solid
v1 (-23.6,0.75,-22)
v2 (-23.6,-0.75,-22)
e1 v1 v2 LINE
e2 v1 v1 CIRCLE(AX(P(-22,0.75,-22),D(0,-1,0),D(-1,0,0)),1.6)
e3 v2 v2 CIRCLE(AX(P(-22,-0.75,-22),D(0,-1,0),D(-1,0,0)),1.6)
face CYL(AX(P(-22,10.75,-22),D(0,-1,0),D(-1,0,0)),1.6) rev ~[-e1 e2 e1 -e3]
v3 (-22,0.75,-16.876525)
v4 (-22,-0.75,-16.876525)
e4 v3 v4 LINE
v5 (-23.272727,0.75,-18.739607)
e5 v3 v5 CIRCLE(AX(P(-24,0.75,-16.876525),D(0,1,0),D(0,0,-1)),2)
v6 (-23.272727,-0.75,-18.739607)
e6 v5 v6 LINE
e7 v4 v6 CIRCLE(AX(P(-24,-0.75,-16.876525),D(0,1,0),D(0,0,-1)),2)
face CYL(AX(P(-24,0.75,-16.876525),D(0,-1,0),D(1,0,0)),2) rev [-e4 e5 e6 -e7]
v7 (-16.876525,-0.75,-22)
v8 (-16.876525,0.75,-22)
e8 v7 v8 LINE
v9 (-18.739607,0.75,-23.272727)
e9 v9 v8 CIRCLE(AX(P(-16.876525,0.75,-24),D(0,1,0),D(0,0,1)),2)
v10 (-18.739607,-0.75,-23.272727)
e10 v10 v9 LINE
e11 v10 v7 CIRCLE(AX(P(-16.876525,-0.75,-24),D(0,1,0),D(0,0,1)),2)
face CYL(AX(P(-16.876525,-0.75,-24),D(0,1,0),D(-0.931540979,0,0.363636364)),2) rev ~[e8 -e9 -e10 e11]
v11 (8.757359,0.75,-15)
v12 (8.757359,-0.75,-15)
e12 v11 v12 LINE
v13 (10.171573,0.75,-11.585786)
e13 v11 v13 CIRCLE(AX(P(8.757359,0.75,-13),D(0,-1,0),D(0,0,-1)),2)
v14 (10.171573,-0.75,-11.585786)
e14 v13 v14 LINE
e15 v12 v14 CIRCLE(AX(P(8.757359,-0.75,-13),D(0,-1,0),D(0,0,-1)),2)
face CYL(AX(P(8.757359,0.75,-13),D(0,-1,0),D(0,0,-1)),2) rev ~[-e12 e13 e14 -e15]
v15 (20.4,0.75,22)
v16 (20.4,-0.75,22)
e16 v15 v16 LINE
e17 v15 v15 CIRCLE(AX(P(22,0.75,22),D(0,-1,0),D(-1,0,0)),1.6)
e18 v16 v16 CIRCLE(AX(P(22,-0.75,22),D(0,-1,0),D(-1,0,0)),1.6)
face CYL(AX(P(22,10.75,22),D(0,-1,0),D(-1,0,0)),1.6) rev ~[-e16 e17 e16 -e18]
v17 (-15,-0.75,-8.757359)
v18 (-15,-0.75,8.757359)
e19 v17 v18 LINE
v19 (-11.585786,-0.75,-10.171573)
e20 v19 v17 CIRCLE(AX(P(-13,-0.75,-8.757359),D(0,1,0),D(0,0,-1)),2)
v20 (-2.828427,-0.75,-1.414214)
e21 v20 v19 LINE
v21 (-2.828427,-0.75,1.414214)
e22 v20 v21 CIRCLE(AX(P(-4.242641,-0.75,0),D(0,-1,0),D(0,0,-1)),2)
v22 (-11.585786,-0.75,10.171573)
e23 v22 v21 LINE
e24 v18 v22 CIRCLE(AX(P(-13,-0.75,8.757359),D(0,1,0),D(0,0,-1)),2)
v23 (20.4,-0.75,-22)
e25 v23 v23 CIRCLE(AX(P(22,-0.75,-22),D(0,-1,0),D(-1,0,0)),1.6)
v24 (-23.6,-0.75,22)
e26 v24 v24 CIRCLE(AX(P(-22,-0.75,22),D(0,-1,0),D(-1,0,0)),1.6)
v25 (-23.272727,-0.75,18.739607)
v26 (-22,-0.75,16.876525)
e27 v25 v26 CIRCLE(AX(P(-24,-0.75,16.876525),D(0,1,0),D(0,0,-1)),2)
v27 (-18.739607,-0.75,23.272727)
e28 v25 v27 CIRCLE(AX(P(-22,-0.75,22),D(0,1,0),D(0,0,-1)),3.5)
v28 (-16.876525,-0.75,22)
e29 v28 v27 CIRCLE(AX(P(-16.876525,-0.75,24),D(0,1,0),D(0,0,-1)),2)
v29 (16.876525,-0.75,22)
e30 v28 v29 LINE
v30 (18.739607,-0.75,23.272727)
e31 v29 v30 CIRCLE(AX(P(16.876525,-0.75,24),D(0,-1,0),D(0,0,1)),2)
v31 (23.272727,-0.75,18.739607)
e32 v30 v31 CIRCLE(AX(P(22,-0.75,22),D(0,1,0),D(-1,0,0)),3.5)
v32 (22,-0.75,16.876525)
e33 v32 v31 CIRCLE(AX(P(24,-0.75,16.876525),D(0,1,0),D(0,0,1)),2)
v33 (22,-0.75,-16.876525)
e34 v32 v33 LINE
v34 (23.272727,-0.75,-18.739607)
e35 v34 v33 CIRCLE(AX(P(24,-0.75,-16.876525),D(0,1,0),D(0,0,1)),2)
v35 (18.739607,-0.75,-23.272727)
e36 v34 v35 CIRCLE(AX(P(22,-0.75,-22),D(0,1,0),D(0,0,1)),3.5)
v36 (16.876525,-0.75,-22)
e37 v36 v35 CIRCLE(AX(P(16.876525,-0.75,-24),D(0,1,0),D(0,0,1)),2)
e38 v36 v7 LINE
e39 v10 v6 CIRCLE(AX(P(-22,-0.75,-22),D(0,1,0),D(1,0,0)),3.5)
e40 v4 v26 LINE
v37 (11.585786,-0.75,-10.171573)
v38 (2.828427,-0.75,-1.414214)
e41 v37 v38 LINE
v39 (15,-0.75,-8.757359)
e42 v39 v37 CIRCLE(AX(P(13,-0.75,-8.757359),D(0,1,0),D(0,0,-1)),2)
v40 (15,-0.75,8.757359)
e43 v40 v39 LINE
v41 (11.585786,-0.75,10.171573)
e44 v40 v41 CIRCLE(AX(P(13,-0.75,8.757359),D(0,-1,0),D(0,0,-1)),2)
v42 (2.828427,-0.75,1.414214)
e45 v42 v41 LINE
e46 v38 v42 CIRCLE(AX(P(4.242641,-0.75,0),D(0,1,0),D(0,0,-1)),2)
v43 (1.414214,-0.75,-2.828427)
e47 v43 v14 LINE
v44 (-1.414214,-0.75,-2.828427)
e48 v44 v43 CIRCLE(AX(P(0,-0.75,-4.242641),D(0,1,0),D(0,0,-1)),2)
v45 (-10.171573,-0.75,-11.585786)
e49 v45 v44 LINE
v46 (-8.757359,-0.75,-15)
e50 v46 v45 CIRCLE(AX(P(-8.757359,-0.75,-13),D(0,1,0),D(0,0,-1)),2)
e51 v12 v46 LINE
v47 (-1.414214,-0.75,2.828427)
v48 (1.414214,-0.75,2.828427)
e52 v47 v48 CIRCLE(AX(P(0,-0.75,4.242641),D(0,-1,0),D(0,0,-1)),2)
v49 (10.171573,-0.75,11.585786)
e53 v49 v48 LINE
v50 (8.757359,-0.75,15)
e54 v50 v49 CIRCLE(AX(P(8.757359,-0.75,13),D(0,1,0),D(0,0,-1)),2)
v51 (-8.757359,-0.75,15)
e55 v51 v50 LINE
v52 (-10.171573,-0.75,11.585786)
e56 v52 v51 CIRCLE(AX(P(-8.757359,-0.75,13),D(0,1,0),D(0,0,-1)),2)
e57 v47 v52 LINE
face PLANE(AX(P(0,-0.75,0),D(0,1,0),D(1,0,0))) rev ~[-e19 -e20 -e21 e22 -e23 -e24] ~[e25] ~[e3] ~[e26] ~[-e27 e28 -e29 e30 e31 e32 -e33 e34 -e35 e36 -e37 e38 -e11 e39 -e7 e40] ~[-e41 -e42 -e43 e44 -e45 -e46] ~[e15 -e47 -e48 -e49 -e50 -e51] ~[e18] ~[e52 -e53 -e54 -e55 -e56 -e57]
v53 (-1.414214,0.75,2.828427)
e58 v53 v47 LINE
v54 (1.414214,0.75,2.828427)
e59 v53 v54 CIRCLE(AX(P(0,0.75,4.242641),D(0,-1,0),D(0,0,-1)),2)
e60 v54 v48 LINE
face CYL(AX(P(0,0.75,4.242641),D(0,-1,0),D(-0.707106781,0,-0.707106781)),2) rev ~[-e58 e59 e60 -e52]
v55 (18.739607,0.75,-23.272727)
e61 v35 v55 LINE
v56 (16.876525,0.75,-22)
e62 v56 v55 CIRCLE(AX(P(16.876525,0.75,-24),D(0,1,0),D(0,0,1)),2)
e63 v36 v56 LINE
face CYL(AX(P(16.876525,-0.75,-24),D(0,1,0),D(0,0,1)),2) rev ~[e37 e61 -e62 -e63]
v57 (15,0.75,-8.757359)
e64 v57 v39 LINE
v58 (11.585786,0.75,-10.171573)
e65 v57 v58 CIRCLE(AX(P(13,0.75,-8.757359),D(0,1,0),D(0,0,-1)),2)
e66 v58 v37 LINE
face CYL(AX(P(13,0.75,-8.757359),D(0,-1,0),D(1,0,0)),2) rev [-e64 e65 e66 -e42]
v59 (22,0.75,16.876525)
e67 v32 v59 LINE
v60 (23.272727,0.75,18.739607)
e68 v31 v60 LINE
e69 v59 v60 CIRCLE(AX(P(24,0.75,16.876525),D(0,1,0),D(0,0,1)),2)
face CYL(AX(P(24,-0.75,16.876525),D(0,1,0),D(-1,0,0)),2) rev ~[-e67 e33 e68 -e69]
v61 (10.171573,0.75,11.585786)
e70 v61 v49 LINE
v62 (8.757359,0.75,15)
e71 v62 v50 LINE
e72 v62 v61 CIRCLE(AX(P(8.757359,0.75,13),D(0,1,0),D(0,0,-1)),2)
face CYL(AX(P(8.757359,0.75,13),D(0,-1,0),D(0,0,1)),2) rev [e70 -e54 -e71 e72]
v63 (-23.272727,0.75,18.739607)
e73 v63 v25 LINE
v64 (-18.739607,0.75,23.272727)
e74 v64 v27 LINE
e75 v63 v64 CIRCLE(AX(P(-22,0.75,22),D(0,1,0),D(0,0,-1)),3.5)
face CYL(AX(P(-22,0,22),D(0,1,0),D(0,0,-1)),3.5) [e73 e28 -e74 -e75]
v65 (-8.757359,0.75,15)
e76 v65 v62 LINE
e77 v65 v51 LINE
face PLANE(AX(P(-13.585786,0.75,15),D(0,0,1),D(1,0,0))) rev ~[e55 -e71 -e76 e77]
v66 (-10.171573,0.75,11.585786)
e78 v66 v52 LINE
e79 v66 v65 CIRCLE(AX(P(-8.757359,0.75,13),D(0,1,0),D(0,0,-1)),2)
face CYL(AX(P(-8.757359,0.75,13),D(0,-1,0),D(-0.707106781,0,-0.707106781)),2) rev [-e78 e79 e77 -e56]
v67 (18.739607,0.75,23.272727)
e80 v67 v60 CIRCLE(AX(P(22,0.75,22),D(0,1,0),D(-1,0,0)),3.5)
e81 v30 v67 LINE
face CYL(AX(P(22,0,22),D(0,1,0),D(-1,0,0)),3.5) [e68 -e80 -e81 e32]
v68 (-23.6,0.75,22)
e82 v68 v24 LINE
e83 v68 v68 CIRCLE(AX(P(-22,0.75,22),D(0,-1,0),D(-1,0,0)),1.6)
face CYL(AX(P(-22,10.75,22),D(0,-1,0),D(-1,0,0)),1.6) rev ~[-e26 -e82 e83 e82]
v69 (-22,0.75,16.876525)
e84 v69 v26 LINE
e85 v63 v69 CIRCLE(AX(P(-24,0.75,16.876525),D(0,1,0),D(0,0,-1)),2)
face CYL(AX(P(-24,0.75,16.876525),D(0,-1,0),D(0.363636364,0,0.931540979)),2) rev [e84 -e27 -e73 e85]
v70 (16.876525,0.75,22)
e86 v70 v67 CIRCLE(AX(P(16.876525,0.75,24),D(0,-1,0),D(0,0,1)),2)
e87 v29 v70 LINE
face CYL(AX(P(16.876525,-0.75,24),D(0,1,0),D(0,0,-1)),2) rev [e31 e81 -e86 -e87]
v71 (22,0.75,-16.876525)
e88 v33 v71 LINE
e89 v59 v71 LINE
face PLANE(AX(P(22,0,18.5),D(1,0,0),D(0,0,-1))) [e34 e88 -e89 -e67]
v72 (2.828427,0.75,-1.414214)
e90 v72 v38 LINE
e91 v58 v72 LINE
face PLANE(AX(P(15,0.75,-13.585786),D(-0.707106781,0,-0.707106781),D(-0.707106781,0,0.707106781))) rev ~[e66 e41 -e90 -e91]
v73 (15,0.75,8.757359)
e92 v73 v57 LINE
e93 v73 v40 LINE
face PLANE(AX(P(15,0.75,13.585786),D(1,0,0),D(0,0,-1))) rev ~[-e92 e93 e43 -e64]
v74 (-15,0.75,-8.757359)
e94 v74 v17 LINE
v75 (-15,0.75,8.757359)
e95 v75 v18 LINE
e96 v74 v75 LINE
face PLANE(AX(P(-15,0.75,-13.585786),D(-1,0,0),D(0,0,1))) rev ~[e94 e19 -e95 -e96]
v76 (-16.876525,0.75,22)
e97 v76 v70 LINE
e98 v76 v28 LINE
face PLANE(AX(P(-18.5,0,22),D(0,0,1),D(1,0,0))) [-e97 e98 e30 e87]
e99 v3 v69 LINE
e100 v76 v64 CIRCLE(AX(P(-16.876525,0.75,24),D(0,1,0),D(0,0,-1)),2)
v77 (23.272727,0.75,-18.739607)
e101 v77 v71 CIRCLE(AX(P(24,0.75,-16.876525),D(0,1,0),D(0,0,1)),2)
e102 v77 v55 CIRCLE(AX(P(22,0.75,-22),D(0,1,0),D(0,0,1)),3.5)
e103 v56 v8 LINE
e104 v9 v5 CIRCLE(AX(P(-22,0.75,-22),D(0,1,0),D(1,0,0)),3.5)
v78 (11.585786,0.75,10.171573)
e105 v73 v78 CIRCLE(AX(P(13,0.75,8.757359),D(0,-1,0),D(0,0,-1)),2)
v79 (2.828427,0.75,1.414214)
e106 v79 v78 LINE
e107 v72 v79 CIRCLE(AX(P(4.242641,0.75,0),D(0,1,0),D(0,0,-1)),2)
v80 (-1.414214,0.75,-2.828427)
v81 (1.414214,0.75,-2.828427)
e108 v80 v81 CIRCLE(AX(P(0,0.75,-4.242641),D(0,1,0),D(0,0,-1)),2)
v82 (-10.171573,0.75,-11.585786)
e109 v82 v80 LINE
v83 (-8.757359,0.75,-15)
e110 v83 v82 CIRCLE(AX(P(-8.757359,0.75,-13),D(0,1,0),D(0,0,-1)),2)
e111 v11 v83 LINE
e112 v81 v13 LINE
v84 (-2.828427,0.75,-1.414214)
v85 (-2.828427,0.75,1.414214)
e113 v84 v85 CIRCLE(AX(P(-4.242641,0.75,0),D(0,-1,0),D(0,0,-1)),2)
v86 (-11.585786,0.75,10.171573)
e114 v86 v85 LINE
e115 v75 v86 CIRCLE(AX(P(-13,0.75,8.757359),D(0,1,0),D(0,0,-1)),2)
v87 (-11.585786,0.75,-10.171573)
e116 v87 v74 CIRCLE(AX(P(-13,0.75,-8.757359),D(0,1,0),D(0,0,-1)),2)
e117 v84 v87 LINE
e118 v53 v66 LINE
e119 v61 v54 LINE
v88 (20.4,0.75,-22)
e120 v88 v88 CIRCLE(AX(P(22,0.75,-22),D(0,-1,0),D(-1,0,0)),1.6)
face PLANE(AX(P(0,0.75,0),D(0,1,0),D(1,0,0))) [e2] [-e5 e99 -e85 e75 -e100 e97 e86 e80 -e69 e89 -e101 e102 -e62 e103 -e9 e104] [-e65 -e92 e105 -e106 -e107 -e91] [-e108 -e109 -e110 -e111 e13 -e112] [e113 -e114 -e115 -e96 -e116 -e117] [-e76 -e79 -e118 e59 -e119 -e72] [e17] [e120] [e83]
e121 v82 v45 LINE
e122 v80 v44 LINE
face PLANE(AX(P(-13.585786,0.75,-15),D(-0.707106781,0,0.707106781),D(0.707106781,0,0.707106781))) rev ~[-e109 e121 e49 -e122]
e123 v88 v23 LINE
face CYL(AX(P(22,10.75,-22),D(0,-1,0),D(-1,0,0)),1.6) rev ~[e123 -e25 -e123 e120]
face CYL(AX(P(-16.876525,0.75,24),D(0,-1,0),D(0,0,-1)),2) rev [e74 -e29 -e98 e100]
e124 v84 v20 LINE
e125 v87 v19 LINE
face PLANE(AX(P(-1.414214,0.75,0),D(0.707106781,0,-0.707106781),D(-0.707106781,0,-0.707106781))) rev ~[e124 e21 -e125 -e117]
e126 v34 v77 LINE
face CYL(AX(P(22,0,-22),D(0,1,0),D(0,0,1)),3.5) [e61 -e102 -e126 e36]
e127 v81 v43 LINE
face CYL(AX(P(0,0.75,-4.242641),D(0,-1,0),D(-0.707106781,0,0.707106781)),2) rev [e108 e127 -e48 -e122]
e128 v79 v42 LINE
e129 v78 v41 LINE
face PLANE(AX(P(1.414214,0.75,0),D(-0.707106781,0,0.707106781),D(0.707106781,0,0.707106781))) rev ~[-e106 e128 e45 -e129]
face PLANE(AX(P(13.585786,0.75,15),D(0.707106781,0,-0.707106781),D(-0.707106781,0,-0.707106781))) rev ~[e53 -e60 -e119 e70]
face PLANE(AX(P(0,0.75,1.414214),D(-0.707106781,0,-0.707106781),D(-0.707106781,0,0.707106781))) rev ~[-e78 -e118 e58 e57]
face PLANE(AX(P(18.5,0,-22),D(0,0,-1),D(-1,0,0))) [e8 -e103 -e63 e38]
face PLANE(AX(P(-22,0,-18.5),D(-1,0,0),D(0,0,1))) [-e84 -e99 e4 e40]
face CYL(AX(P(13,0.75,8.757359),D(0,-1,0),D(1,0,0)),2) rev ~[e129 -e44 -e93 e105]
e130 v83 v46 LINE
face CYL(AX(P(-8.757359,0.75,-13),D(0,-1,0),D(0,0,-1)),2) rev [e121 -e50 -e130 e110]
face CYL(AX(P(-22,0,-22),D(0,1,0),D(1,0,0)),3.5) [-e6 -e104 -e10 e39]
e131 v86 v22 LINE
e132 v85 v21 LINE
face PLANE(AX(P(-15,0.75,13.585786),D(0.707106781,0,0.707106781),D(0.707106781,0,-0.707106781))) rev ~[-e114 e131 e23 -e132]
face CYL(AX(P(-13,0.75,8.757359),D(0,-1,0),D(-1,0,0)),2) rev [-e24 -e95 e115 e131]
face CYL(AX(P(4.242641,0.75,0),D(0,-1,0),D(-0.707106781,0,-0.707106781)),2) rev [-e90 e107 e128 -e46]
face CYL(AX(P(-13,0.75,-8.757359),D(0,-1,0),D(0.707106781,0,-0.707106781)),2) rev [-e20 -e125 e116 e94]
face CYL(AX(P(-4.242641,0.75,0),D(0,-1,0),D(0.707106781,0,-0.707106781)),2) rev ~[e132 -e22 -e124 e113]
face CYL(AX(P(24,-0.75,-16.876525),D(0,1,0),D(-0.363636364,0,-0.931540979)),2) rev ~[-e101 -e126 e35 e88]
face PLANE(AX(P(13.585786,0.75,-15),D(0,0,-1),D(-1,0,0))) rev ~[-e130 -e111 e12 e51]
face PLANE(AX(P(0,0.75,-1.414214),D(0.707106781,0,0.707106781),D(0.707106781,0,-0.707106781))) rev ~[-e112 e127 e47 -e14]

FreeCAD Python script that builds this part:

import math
import FreeCAD as App
import Part
import Sketcher
from FreeCAD import Vector


def edges_at(feature, points):
    """Names of the edges that pass closest to the given points."""
    edges = feature.Shape.Edges
    near = lambda p: min(range(len(edges)), key=lambda i: edges[i].distToShape(Part.Vertex(*p))[0])
    return sorted({f"Edge{near(p) + 1}" for p in points})


def add_polygon(sketch, points):
    """Adds a closed chain of lines whose ends are joined by coincident constraints."""
    first, n = sketch.GeometryCount, len(points)
    for a, b in zip(points, points[1:] + points[:1]):
        sketch.addGeometry(Part.LineSegment(App.Vector(*a, 0), App.Vector(*b, 0)), False)
    for i in range(n):
        sketch.addConstraint(Sketcher.Constraint("Coincident", first + i, 2, first + (i + 1) % n, 1))

doc = App.newDocument("Part")
body = doc.addObject("PartDesign::Body", "Body")

sketch1 = doc.addObject("Sketcher::SketchObject", "Sketch")
body.addObject(sketch1)
sketch1.AttachmentSupport = (doc.XZ_Plane, [""])
sketch1.MapMode = "FlatFace"
sketch1.addGeometry([
    Part.LineSegment(Vector(-18.5, 22, 0), Vector(18.5, 22, 0)),
    Part.ArcOfCircle(Part.Circle(Vector(22, 22, 0), Vector(0, 0, 1), 3.5), math.radians(-90), math.radians(180)),
    Part.LineSegment(Vector(22, 18.5, 0), Vector(22, -18.5, 0)),
    Part.ArcOfCircle(Part.Circle(Vector(22, -22, 0), Vector(0, 0, 1), 3.5), math.radians(180), math.radians(450)),
    Part.LineSegment(Vector(18.5, -22, 0), Vector(-18.5, -22, 0)),
    Part.ArcOfCircle(Part.Circle(Vector(-22, -22, 0), Vector(0, 0, 1), 3.5), math.radians(90), math.radians(360)),
    Part.LineSegment(Vector(-22, -18.5, 0), Vector(-22, 18.5, 0)),
    Part.ArcOfCircle(Part.Circle(Vector(-22, 22, 0), Vector(0, 0, 1), 3.5), math.radians(0), math.radians(270)),
], False)
sketch1.addConstraint([
    Sketcher.Constraint("Coincident", 0, 2, 1, 2),
    Sketcher.Constraint("Coincident", 1, 1, 2, 1),
    Sketcher.Constraint("Coincident", 2, 2, 3, 2),
    Sketcher.Constraint("Coincident", 3, 1, 4, 1),
    Sketcher.Constraint("Coincident", 4, 2, 5, 2),
    Sketcher.Constraint("Coincident", 5, 1, 6, 1),
    Sketcher.Constraint("Coincident", 6, 2, 7, 2),
    Sketcher.Constraint("Coincident", 7, 1, 0, 1),
    Sketcher.Constraint("Horizontal", 0),
    Sketcher.Constraint("Vertical", 2),
    Sketcher.Constraint("Horizontal", 4),
    Sketcher.Constraint("Vertical", 6),
    Sketcher.Constraint("Equal", 1, 3),
    Sketcher.Constraint("Equal", 3, 5),
    Sketcher.Constraint("Equal", 5, 7),
    Sketcher.Constraint("Symmetric", 1, 3, 5, 3, -1, 1),
    Sketcher.Constraint("Symmetric", 3, 3, 7, 3, -1, 1),
    Sketcher.Constraint("Symmetric", 3, 3, 5, 3, -2),
    Sketcher.Constraint("Horizontal", 7, 3, 0, 2),
    Sketcher.Constraint("Horizontal", 5, 3, 3, 1),
    Sketcher.Constraint("Vertical", 3, 3, 1, 1),
    Sketcher.Constraint("Vertical", 7, 3, 5, 1),
    Sketcher.Constraint("Equal", 4, 2),
    Sketcher.Constraint("Radius", 1, 3.5),
    Sketcher.Constraint("DistanceX", 0, 1, 0, 2, 37.0),
])
pad1 = doc.addObject("PartDesign::Pad", "Pad")
body.addObject(pad1)
pad1.Profile = sketch1
pad1.Length = 1.5
pad1.Midplane = True
doc.recompute()

fillet = doc.addObject("PartDesign::Fillet", "Fillet")
body.addObject(fillet)
fillet.Base = (pad1, edges_at(pad1, [
    (-18.5, 0, -22),
    (18.5, 0, -22),
    (22, 0, -18.5),
    (22, 0, 18.5),
    (18.5, 0, 22),
    (-18.5, 0, 22),
    (-22, 0, 18.5),
    (-22, 0, -18.5),
]))
fillet.Radius = 2

sketch2 = doc.addObject("Sketcher::SketchObject", "Sketch001")
body.addObject(sketch2)
sketch2.AttachmentSupport = (doc.XZ_Plane, [""])
sketch2.MapMode = "FlatFace"
sketch2.AttachmentOffset = App.Placement(Vector(0, 0, -0.75), App.Rotation())
sketch2.addGeometry([
    Part.Circle(Vector(-22, -22, 0), Vector(0, 0, 1), 1.6),
    Part.Circle(Vector(-22, 22, 0), Vector(0, 0, 1), 1.6),
    Part.Circle(Vector(22, 22, 0), Vector(0, 0, 1), 1.6),
    Part.Circle(Vector(22, -22, 0), Vector(0, 0, 1), 1.6),
], False)
sketch2.addConstraint([
    Sketcher.Constraint("Equal", 0, 1),
    Sketcher.Constraint("Equal", 1, 2),
    Sketcher.Constraint("Equal", 2, 3),
    Sketcher.Constraint("Symmetric", 0, 3, 2, 3, -1, 1),
    Sketcher.Constraint("Symmetric", 1, 3, 3, 3, -1, 1),
    Sketcher.Constraint("Symmetric", 1, 3, 2, 3, -2),
    Sketcher.Constraint("Diameter", 0, 3.2),
    Sketcher.Constraint("DistanceX", 0, 3, -1, 1, 22.0),
    Sketcher.Constraint("DistanceY", 0, 3, -1, 1, 22.0),
])
doc.recompute()
hole = doc.addObject("PartDesign::Hole", "Hole")
body.addObject(hole)
hole.Profile = sketch2
hole.ThreadType = "None"
hole.Diameter = 3.2
hole.DepthType = "Dimension"
hole.Depth = 10
hole.DrillPoint = "Angled"
hole.DrillPointAngle = 118
hole.Reversed = True

sketch3 = doc.addObject("Sketcher::SketchObject", "Sketch002")
body.addObject(sketch3)
sketch3.AttachmentSupport = (doc.XZ_Plane, [""])
sketch3.MapMode = "FlatFace"
sketch3.AttachmentOffset = App.Placement(Vector(0, 0, -0.75), App.Rotation())
add_polygon(sketch3, [(-1.414214, 0), (-15, -13.585786), (-15, 13.585786)])
add_polygon(sketch3, [(13.585786, -15), (-13.585786, -15), (0, -1.414214)])
add_polygon(sketch3, [(15, 13.585786), (15, -13.585786), (1.414214, 0)])
add_polygon(sketch3, [(0, 1.414214), (-13.585786, 15), (13.585786, 15)])
sketch3.addConstraint([
    Sketcher.Constraint("Vertical", 1),
    Sketcher.Constraint("Horizontal", 3),
    Sketcher.Constraint("Vertical", 6),
    Sketcher.Constraint("Horizontal", 10),
    Sketcher.Constraint("Symmetric", 1, 2, 6, 2, -1, 1),
    Sketcher.Constraint("Symmetric", 2, 2, 7, 2, -1, 1),
    Sketcher.Constraint("Symmetric", 5, 2, 9, 2, -1, 1),
    Sketcher.Constraint("Symmetric", 4, 2, 11, 2, -1, 1),
    Sketcher.Constraint("PointOnObject", 2, 2, -1),
    Sketcher.Constraint("PointOnObject", 4, 2, -2),
    Sketcher.Constraint("Perpendicular", 0, 2),
    Sketcher.Constraint("Perpendicular", 2, 4),
    Sketcher.Constraint("Perpendicular", 4, 5),
    Sketcher.Constraint("Perpendicular", 7, 8),
    Sketcher.Constraint("Perpendicular", 9, 11),
    Sketcher.Constraint("Horizontal", 0, 2, 6, 2),
    Sketcher.Constraint("Equal", 10, 1),
    Sketcher.Constraint("DistanceX", 0, 2, -1, 1, 15.0),
    Sketcher.Constraint("DistanceY", 3, 2, -1, 1, 15.0),
    Sketcher.Constraint("DistanceX", 3, 2, 3, 1, 27.171573),
])
pocket1 = doc.addObject("PartDesign::Pocket", "Pocket")
body.addObject(pocket1)
pocket1.Profile = sketch3
pocket1.Length = 1.5
pocket1.Reversed = True
doc.recompute()

fillet2 = doc.addObject("PartDesign::Fillet", "Fillet001")
body.addObject(fillet2)
fillet2.Base = (pocket1, edges_at(pocket1, [
    (-1.414, 0, 0),
    (-15, 0, 13.586),
    (-15, 0, -13.586),
    (13.586, 0, -15),
    (0, 0, -1.414),
    (-13.586, 0, -15),
    (15, 0, -13.586),
    (15, 0, 13.586),
    (1.414, 0, 0),
    (0, 0, 1.414),
    (13.586, 0, 15),
    (-13.586, 0, 15),
]))
fillet2.Radius = 2

doc.recompute()
